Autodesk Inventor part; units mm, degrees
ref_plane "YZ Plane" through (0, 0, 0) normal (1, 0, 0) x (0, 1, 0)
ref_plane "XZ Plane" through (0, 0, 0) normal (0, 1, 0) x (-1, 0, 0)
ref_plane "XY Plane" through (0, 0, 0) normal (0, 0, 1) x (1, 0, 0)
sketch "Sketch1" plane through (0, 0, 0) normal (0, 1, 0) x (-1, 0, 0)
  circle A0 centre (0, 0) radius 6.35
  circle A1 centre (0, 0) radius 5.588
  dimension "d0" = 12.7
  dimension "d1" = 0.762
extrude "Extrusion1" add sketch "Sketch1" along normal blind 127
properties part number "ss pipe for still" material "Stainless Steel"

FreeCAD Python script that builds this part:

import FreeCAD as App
import Part
import Sketcher
Q = App.Units.Quantity

doc = App.newDocument("Part")
params = doc.addObject("Spreadsheet::Sheet", "Params")
for row, (alias, value) in enumerate([
    ("sketch1_diameter", "0.5 in"),
    ("sketch1_diameter2", "0.44 in"),
    ("pad1_length", "5 in"),
], start=1):
    params.set(f"A{row}", alias)
    params.set(f"B{row}", "=" + value)
    params.setAlias(f"B{row}", alias)

body = doc.addObject("PartDesign::Body", "Body")

# Sketch on XZ plane
sketch1 = doc.addObject("Sketcher::SketchObject", "Sketch")
body.addObject(sketch1)
sketch1.AttachmentSupport = (doc.XZ_Plane, [""])
sketch1.MapMode = "FlatFace"
sketch1.addGeometry([
    Part.Circle(App.Vector(0, 0, 0), App.Vector(0, 0, 1), 6),
    Part.Circle(App.Vector(0, 0, 0), App.Vector(0, 0, 1), 6),
], False)
sketch1.addConstraint([
    Sketcher.Constraint("Coincident", 0, 3, -1, 1),
    Sketcher.Constraint("Coincident", 1, 3, -1, 1),
    Sketcher.Constraint("Diameter", 0, Q("0.5 in")),
    Sketcher.Constraint("Diameter", 1, Q("0.44 in")),
])
sketch1.setExpression("Constraints[2]", "Params.sketch1_diameter")
sketch1.setExpression("Constraints[3]", "Params.sketch1_diameter2")
pad1 = doc.addObject("PartDesign::Pad", "Pad")
body.addObject(pad1)
pad1.Profile = sketch1
pad1.setExpression("Length", "Params.pad1_length")
pad1.Reversed = True

doc.recompute()
